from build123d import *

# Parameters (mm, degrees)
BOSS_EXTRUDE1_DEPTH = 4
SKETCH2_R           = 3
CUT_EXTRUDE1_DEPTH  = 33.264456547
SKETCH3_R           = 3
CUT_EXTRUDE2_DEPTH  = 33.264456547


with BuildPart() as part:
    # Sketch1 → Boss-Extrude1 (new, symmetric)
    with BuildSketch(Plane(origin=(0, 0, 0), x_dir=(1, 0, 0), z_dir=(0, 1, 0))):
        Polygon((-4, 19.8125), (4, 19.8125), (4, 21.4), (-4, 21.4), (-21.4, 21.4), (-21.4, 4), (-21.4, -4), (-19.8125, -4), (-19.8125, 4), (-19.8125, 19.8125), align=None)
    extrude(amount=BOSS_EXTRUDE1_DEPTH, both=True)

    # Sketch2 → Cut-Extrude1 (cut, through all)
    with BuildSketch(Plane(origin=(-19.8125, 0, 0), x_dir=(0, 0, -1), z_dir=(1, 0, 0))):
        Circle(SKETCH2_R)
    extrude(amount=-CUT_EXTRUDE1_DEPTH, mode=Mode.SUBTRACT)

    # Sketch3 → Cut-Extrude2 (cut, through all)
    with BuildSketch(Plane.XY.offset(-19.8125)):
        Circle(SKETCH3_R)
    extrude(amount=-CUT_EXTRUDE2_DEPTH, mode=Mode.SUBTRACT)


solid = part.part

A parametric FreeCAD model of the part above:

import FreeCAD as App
import Part
import Sketcher
Q = App.Units.Quantity


def add_polygon(sketch, points):
    """Adds a closed chain of lines whose ends are joined by coincident constraints."""
    first, n = sketch.GeometryCount, len(points)
    for a, b in zip(points, points[1:] + points[:1]):
        sketch.addGeometry(Part.LineSegment(App.Vector(*a, 0), App.Vector(*b, 0)), False)
    for i in range(n):
        sketch.addConstraint(Sketcher.Constraint("Coincident", first + i, 2, first + (i + 1) % n, 1))

doc = App.newDocument("Part")
params = doc.addObject("Spreadsheet::Sheet", "Params")
for row, (alias, value) in enumerate([
    ("sketch1_width", "1 in"),
    ("sketch1_width2", "0.0625 in"),
    ("pad1_length", "8 mm"),
], start=1):
    params.set(f"A{row}", alias)
    params.set(f"B{row}", "=" + value)
    params.setAlias(f"B{row}", alias)

body = doc.addObject("PartDesign::Body", "Body")

# Sketch on XZ plane
sketch1 = body.newObject("Sketcher::SketchObject", "Sketch")
sketch1.AttachmentSupport = (doc.getObject("XZ_Plane"), [""])
sketch1.MapMode = "FlatFace"
add_polygon(sketch1, [(4, -19.8125), (4, -21.4), (-21.4, -21.4), (-21.4, 4), (-19.8125, 4), (-19.8125, -19.8125)])  # lines 0-5
sketch1.addConstraint(Sketcher.Constraint("Vertical", 0))
sketch1.addConstraint(Sketcher.Constraint("Horizontal", 1))
sketch1.addConstraint(Sketcher.Constraint("Vertical", 2))
sketch1.addConstraint(Sketcher.Constraint("Horizontal", 3))
sketch1.addConstraint(Sketcher.Constraint("Vertical", 4))
sketch1.addConstraint(Sketcher.Constraint("Horizontal", 5))
sketch1.addConstraint(Sketcher.Constraint("Equal", 3, 0))
sketch1.addConstraint(Sketcher.Constraint("Equal", 1, 2))
sketch1.addConstraint(Sketcher.Constraint("DistanceX", 1, 2, 1, 1, Q("1 in")))
sketch1.addConstraint(Sketcher.Constraint("DistanceX", 3, 1, 3, 2, Q("0.0625 in")))
sketch1.addConstraint(Sketcher.Constraint("DistanceX", -1, 1, 0, 2, Q("4 mm")))
sketch1.addConstraint(Sketcher.Constraint("DistanceY", 0, 2, -1, 1, Q("21.4 mm")))
sketch1.setExpression("Constraints[14]", "Params.sketch1_width")
sketch1.setExpression("Constraints[15]", "Params.sketch1_width2")
pad1 = body.newObject("PartDesign::Pad", "Pad")
pad1.Profile = sketch1
pad1.setExpression("Length", "Params.pad1_length")
pad1.Midplane = True

# Sketch on YZ plane
sketch2 = body.newObject("Sketcher::SketchObject", "Sketch001")
sketch2.AttachmentSupport = (doc.getObject("YZ_Plane"), [""])
sketch2.MapMode = "FlatFace"
sketch2.AttachmentOffset = App.Placement(App.Vector(0, 0, -19.8125), App.Rotation())
sketch2.addGeometry(Part.Circle(App.Vector(0, 0, 0), App.Vector(0, 0, 1), 3), False)
sketch2.addConstraint(Sketcher.Constraint("Coincident", 0, 3, -1, 1))
sketch2.addConstraint(Sketcher.Constraint("Diameter", 0, Q("6 mm")))
pocket1 = body.newObject("PartDesign::Pocket", "Pocket")
pocket1.Profile = sketch2
pocket1.Type = "ThroughAll"

# Sketch on XY plane
sketch3 = body.newObject("Sketcher::SketchObject", "Sketch002")
sketch3.AttachmentSupport = (doc.getObject("XY_Plane"), [""])
sketch3.MapMode = "FlatFace"
sketch3.AttachmentOffset = App.Placement(App.Vector(0, 0, -19.8125), App.Rotation())
sketch3.addGeometry(Part.Circle(App.Vector(0, 0, 0), App.Vector(0, 0, 1), 3), False)
sketch3.addConstraint(Sketcher.Constraint("Coincident", 0, 3, -1, 1))
sketch3.addConstraint(Sketcher.Constraint("Diameter", 0, Q("6 mm")))
pocket2 = body.newObject("PartDesign::Pocket", "Pocket001")
pocket2.Profile = sketch3
pocket2.Type = "ThroughAll"

doc.recompute()
